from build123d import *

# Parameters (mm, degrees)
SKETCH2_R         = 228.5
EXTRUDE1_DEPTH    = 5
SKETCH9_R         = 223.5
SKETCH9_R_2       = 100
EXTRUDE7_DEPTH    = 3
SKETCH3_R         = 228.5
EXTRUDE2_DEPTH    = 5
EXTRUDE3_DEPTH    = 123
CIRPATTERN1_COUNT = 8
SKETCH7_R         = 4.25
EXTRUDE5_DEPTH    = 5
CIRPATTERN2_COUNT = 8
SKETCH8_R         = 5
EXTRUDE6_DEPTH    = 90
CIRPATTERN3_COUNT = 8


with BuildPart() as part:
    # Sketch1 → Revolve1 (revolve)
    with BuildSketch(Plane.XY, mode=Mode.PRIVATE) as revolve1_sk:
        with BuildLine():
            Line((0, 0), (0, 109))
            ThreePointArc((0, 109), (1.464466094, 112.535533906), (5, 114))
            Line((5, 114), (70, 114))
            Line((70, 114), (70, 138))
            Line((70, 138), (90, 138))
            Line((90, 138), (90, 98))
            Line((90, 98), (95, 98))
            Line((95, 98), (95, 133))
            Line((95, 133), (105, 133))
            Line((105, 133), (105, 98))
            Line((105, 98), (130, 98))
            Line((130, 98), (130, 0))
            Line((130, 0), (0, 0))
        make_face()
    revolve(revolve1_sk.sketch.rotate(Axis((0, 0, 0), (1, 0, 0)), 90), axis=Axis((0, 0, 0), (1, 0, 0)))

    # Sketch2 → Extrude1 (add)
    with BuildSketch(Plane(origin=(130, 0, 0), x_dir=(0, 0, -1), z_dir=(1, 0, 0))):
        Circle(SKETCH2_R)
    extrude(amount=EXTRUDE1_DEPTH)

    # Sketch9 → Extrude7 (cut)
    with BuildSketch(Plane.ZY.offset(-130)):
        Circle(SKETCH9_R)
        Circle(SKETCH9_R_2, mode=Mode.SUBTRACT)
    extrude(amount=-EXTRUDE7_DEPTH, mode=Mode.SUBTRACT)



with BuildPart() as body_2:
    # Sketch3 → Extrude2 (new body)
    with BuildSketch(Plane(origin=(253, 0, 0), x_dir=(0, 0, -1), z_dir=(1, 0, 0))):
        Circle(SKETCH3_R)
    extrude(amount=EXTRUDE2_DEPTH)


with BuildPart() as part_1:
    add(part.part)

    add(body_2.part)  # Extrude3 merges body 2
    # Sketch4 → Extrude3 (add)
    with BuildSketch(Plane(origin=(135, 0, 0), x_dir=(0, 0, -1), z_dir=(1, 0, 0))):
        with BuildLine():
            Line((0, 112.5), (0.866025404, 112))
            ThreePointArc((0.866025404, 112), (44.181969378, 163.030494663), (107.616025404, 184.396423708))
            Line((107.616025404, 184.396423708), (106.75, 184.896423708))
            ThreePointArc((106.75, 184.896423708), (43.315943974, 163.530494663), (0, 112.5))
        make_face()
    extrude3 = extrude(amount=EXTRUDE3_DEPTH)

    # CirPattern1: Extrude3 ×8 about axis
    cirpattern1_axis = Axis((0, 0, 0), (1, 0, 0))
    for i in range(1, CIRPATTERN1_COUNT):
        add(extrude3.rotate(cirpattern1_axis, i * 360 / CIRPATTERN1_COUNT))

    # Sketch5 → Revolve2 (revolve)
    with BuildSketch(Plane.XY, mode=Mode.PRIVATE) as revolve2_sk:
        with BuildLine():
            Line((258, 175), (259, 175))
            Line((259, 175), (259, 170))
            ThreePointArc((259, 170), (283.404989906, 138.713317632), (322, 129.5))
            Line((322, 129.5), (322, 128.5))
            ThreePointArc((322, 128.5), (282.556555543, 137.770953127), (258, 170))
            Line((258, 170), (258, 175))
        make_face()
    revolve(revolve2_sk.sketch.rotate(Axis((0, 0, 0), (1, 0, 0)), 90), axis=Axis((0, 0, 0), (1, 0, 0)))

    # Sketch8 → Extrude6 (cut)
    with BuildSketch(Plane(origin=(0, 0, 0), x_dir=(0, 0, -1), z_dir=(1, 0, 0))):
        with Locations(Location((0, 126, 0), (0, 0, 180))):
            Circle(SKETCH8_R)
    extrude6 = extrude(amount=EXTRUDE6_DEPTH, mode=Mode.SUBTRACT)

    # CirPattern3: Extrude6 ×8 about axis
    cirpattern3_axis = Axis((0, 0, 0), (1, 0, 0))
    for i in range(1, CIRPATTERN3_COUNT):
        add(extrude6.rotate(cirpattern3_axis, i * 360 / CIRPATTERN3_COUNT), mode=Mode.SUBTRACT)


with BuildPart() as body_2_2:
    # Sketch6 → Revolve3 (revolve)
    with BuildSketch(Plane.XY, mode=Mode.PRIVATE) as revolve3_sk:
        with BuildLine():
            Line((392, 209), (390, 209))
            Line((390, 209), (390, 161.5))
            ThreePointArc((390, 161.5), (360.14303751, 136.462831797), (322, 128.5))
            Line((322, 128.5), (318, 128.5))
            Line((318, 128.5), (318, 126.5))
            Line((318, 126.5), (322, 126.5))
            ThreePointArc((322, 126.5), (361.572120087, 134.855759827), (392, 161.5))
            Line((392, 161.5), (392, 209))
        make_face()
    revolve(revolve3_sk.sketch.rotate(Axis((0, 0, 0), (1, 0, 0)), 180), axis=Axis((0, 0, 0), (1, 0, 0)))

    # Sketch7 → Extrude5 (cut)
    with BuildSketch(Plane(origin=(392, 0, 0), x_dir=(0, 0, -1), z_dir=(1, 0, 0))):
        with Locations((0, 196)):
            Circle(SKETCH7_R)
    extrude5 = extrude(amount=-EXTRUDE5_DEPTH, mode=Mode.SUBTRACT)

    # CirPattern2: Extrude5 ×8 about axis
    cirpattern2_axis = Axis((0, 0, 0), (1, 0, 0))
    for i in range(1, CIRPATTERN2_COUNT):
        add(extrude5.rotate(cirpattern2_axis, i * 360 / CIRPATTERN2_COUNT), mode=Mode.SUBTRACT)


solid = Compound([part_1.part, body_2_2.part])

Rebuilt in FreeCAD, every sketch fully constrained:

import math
import FreeCAD as App
import Part
import Sketcher
from FreeCAD import Vector
Q = App.Units.Quantity

doc = App.newDocument("Part")
body = doc.addObject("PartDesign::Body", "Body")

# Sketch on XY plane
sketch1 = body.newObject("Sketcher::SketchObject", "Sketch")
sketch1.AttachmentSupport = (doc.getObject("XY_Plane"), [""])
sketch1.MapMode = "FlatFace"
sketch1.addGeometry([
    Part.LineSegment(Vector(0, 109, 0), Vector(0, 0, 0)),  # 0
    Part.LineSegment(Vector(0, 0, 0), Vector(130, 0, 0)),  # 1
    Part.LineSegment(Vector(130, 0, 0), Vector(130, 98, 0)),  # 2
    Part.LineSegment(Vector(130, 98, 0), Vector(105, 98, 0)),  # 3
    Part.LineSegment(Vector(105, 98, 0), Vector(105, 133, 0)),  # 4
    Part.LineSegment(Vector(105, 133, 0), Vector(95, 133, 0)),  # 5
    Part.LineSegment(Vector(95, 133, 0), Vector(95, 98, 0)),  # 6
    Part.LineSegment(Vector(95, 98, 0), Vector(90, 98, 0)),  # 7
    Part.LineSegment(Vector(90, 98, 0), Vector(90, 138, 0)),  # 8
    Part.LineSegment(Vector(90, 138, 0), Vector(70, 138, 0)),  # 9
    Part.LineSegment(Vector(70, 138, 0), Vector(70, 114, 0)),  # 10
    Part.LineSegment(Vector(70, 114, 0), Vector(5, 114, 0)),  # 11
    Part.ArcOfCircle(Part.Circle(Vector(5, 109, 0), Vector(0, 0, 1), 5), math.radians(90), math.radians(180)),  # 12
], False)
sketch1.addConstraint([
    Sketcher.Constraint("Coincident", 0, 2, 1, 1),
    Sketcher.Constraint("Coincident", 1, 2, 2, 1),
    Sketcher.Constraint("Coincident", 2, 2, 3, 1),
    Sketcher.Constraint("Coincident", 3, 2, 4, 1),
    Sketcher.Constraint("Coincident", 4, 2, 5, 1),
    Sketcher.Constraint("Coincident", 5, 2, 6, 1),
    Sketcher.Constraint("Coincident", 6, 2, 7, 1),
    Sketcher.Constraint("Coincident", 7, 2, 8, 1),
    Sketcher.Constraint("Coincident", 8, 2, 9, 1),
    Sketcher.Constraint("Coincident", 9, 2, 10, 1),
    Sketcher.Constraint("Coincident", 10, 2, 11, 1),
    Sketcher.Constraint("Tangent", 11, 2, 12, 1),
    Sketcher.Constraint("Tangent", 12, 2, 0, 1),
    Sketcher.Constraint("Vertical", 0),
    Sketcher.Constraint("Horizontal", 1),
    Sketcher.Constraint("Vertical", 2),
    Sketcher.Constraint("Horizontal", 3),
    Sketcher.Constraint("Vertical", 4),
    Sketcher.Constraint("Horizontal", 5),
    Sketcher.Constraint("Vertical", 6),
    Sketcher.Constraint("Horizontal", 7),
    Sketcher.Constraint("Vertical", 8),
    Sketcher.Constraint("Horizontal", 9),
    Sketcher.Constraint("Vertical", 10),
    Sketcher.Constraint("Horizontal", 11),
    Sketcher.Constraint("Coincident", 0, 2, -1, 1),
    Sketcher.Constraint("Horizontal", 3, 2, 6, 2),
    Sketcher.Constraint("Radius", 12, 5.0),
    Sketcher.Constraint("DistanceX", 1, 1, 1, 2, 130.0),
    Sketcher.Constraint("DistanceX", 3, 2, 3, 1, 25.0),
    Sketcher.Constraint("DistanceX", 5, 2, 5, 1, 10.0),
    Sketcher.Constraint("DistanceX", 7, 2, 7, 1, 5.0),
    Sketcher.Constraint("DistanceX", 9, 2, 9, 1, 20.0),
    Sketcher.Constraint("DistanceY", 0, 2, 0, 1, 109.0),
    Sketcher.Constraint("DistanceY", 2, 1, 2, 2, 98.0),
    Sketcher.Constraint("DistanceY", 4, 1, 4, 2, 35.0),
    Sketcher.Constraint("DistanceY", 8, 1, 8, 2, 40.0),
])
revolution = body.newObject("PartDesign::Revolution", "Revolution")
revolution.Profile = sketch1
revolution.ReferenceAxis = (sketch1, ["H_Axis"])
revolution.Angle = 360

# Sketch on YZ plane
sketch2 = body.newObject("Sketcher::SketchObject", "Sketch001")
sketch2.AttachmentSupport = (doc.getObject("YZ_Plane"), [""])
sketch2.MapMode = "FlatFace"
sketch2.AttachmentOffset = App.Placement(Vector(0, 0, 130), App.Rotation())
sketch2.addGeometry(Part.Circle(Vector(0, 0, 0), Vector(0, 0, 1), 228), False)
sketch2.addConstraint([
    Sketcher.Constraint("Coincident", 0, 3, -1, 1),
    Sketcher.Constraint("Diameter", 0, 457.0),
])
pad1 = body.newObject("PartDesign::Pad", "Pad")
pad1.Profile = sketch2
pad1.Length = 5

# Sketch on YZ plane
sketch3 = body.newObject("Sketcher::SketchObject", "Sketch002")
sketch3.AttachmentSupport = (doc.getObject("YZ_Plane"), [""])
sketch3.MapMode = "FlatFace"
sketch3.AttachmentOffset = App.Placement(Vector(0, 0, 130), App.Rotation())
sketch3.addGeometry([
    Part.Circle(Vector(0, 0, 0), Vector(0, 0, 1), 224),
    Part.Circle(Vector(0, 0, 0), Vector(0, 0, 1), 100),
], False)
sketch3.addConstraint([
    Sketcher.Constraint("Coincident", 0, 3, -1, 1),
    Sketcher.Constraint("Coincident", 1, 3, -1, 1),
    Sketcher.Constraint("Diameter", 0, 447.0),
    Sketcher.Constraint("Diameter", 1, 200.0),
])
pocket1 = body.newObject("PartDesign::Pocket", "Pocket")
pocket1.Profile = sketch3
pocket1.Length = 3
pocket1.Reversed = True
body2 = doc.addObject("PartDesign::Body", "Body001")

# Sketch on YZ plane
sketch4 = body2.newObject("Sketcher::SketchObject", "Sketch003")
sketch4.AttachmentSupport = (doc.getObject("YZ_Plane001"), [""])
sketch4.MapMode = "FlatFace"
sketch4.AttachmentOffset = App.Placement(Vector(0, 0, 253), App.Rotation())
sketch4.addGeometry(Part.Circle(Vector(0, 0, 0), Vector(0, 0, 1), 228), False)
sketch4.addConstraint([
    Sketcher.Constraint("Coincident", 0, 3, -1, 1),
    Sketcher.Constraint("Diameter", 0, 457.0),
])
pad2 = body2.newObject("PartDesign::Pad", "Pad001")
pad2.Profile = sketch4
pad2.Length = 5
body.AllowCompound = True
doc.recompute()

boolean = body.newObject("PartDesign::Boolean", "Boolean")
boolean.Type = "Fuse"
boolean.addObjects([body2])

# Sketch on YZ plane
sketch5 = body.newObject("Sketcher::SketchObject", "Sketch004")
sketch5.AttachmentSupport = (doc.getObject("YZ_Plane"), [""])
sketch5.MapMode = "FlatFace"
sketch5.AttachmentOffset = App.Placement(Vector(0, 0, 135), App.Rotation())
sketch5.addGeometry([
    Part.LineSegment(Vector(112.5, 0, 0), Vector(112, -0.9, 0)),
    Part.ArcOfCircle(Part.Circle(Vector(59.6, -114.3, 0), Vector(0, 0, 1), 125), math.radians(3), math.radians(65)),
    Part.LineSegment(Vector(184.4, -107.6, 0), Vector(184.9, -106.8, 0)),
    Part.ArcOfCircle(Part.Circle(Vector(60.1, -113.5, 0), Vector(0, 0, 1), 125), math.radians(3), math.radians(65)),
], False)
sketch5.addConstraint([
    Sketcher.Constraint("Coincident", 0, 2, 1, 2),
    Sketcher.Constraint("Coincident", 1, 1, 2, 1),
    Sketcher.Constraint("Coincident", 2, 2, 3, 1),
    Sketcher.Constraint("Coincident", 3, 2, 0, 1),
    Sketcher.Constraint("Equal", 1, 3),
    Sketcher.Constraint("PointOnObject", 3, 2, -1),
    Sketcher.Constraint("Parallel", 0, 2),
    Sketcher.Constraint("Equal", 0, 2),
    Sketcher.Constraint("Radius", 1, 125.0),
    Sketcher.Constraint("Angle", 0, Q("-120 deg")),
    Sketcher.Constraint("Distance", 0, 1.0),
    Sketcher.Constraint("DistanceX", -1, 1, 0, 2, 112.0),
    Sketcher.Constraint("DistanceY", 2, 2, -1, 1, 106.75),
    Sketcher.Constraint("DistanceX", -1, 1, 1, 3, 59.577531),
])
pad3 = body.newObject("PartDesign::Pad", "Pad002")
pad3.Profile = sketch5
pad3.Length = 123
doc.recompute()

polarpattern = body.newObject("PartDesign::PolarPattern", "PolarPattern")
polarpattern.Originals = [pad3]
polarpattern.Axis = (doc.getObject("X_Axis"), [""])
polarpattern.Angle = 360
polarpattern.Occurrences = 8
body.Tip = polarpattern

# Sketch on XY plane
sketch6 = body.newObject("Sketcher::SketchObject", "Sketch005")
sketch6.AttachmentSupport = (doc.getObject("XY_Plane"), [""])
sketch6.MapMode = "FlatFace"
sketch6.addGeometry([
    Part.LineSegment(Vector(259, 175, 0), Vector(258, 175, 0)),  # 0
    Part.LineSegment(Vector(258, 175, 0), Vector(258, 170, 0)),  # 1
    Part.ArcOfCircle(Part.Circle(Vector(315.2, 188.1, 0), Vector(0, 0, 1), 60), math.radians(-162), math.radians(-83)),  # 2
    Part.LineSegment(Vector(322, 128.5, 0), Vector(322, 129.5, 0)),  # 3
    Part.ArcOfCircle(Part.Circle(Vector(315.9, 189.2, 0), Vector(0, 0, 1), 60), math.radians(-161), math.radians(-84)),  # 4
    Part.LineSegment(Vector(259, 170, 0), Vector(259, 175, 0)),  # 5
], False)
sketch6.addConstraint([
    Sketcher.Constraint("Coincident", 0, 2, 1, 1),
    Sketcher.Constraint("Coincident", 1, 2, 2, 1),
    Sketcher.Constraint("Coincident", 2, 2, 3, 1),
    Sketcher.Constraint("Coincident", 3, 2, 4, 2),
    Sketcher.Constraint("Coincident", 4, 1, 5, 1),
    Sketcher.Constraint("Coincident", 5, 2, 0, 1),
    Sketcher.Constraint("Horizontal", 0),
    Sketcher.Constraint("Vertical", 1),
    Sketcher.Constraint("Vertical", 3),
    Sketcher.Constraint("Vertical", 5),
    Sketcher.Constraint("Equal", 2, 4),
    Sketcher.Constraint("Horizontal", 1, 2, 4, 1),
    Sketcher.Constraint("Equal", 0, 3),
    Sketcher.Constraint("Radius", 2, 60.0),
    Sketcher.Constraint("DistanceX", 0, 2, 0, 1, 1.0),
    Sketcher.Constraint("DistanceY", 1, 2, 1, 1, 5.0),
    Sketcher.Constraint("DistanceX", -1, 1, 0, 2, 258.0),
    Sketcher.Constraint("DistanceY", -1, 1, 0, 2, 175.0),
    Sketcher.Constraint("DistanceX", -1, 1, 2, 2, 322.0),
    Sketcher.Constraint("DistanceY", -1, 1, 2, 2, 128.5),
])
revolution2 = body.newObject("PartDesign::Revolution", "Revolution001")
revolution2.Profile = sketch6
revolution2.ReferenceAxis = (sketch6, ["H_Axis"])
revolution2.Angle = 360

# Sketch on YZ plane
sketch7 = body.newObject("Sketcher::SketchObject", "Sketch006")
sketch7.AttachmentSupport = (doc.getObject("YZ_Plane"), [""])
sketch7.MapMode = "FlatFace"
sketch7.addGeometry(Part.Circle(Vector(126, 0, 0), Vector(0, 0, 1), 5), False)
sketch7.addConstraint([
    Sketcher.Constraint("PointOnObject", 0, 3, -1),
    Sketcher.Constraint("Diameter", 0, 10.0),
    Sketcher.Constraint("DistanceX", -1, 1, 0, 3, 126.0),
])
pocket2 = body.newObject("PartDesign::Pocket", "Pocket001")
pocket2.Profile = sketch7
pocket2.Length = 90
pocket2.Reversed = True
doc.recompute()

polarpattern2 = body.newObject("PartDesign::PolarPattern", "PolarPattern001")
polarpattern2.Originals = [pocket2]
polarpattern2.Axis = (doc.getObject("X_Axis"), [""])
polarpattern2.Angle = 360
polarpattern2.Occurrences = 8
body.Tip = polarpattern2
body3 = doc.addObject("PartDesign::Body", "Body002")

# Sketch on XY plane
sketch8 = body3.newObject("Sketcher::SketchObject", "Sketch007")
sketch8.AttachmentSupport = (doc.getObject("XY_Plane002"), [""])
sketch8.MapMode = "FlatFace"
sketch8.addGeometry([
    Part.LineSegment(Vector(392, 209, 0), Vector(390, 209, 0)),  # 0
    Part.LineSegment(Vector(390, 209, 0), Vector(390, 161.5, 0)),  # 1
    Part.ArcOfCircle(Part.Circle(Vector(325.2, 208.4, 0), Vector(0, 0, 1), 80), math.radians(-92), math.radians(-36)),  # 2
    Part.LineSegment(Vector(322, 128.5, 0), Vector(318, 128.5, 0)),  # 3
    Part.LineSegment(Vector(318, 128.5, 0), Vector(318, 126.5, 0)),  # 4
    Part.LineSegment(Vector(318, 126.5, 0), Vector(322, 126.5, 0)),  # 5
    Part.ArcOfCircle(Part.Circle(Vector(325.8, 206.4, 0), Vector(0, 0, 1), 80), math.radians(-93), math.radians(-34)),  # 6
    Part.LineSegment(Vector(392, 161.5, 0), Vector(392, 209, 0)),  # 7
], False)
sketch8.addConstraint([
    Sketcher.Constraint("Coincident", 0, 2, 1, 1),
    Sketcher.Constraint("Coincident", 1, 2, 2, 2),
    Sketcher.Constraint("Coincident", 2, 1, 3, 1),
    Sketcher.Constraint("Coincident", 3, 2, 4, 1),
    Sketcher.Constraint("Coincident", 4, 2, 5, 1),
    Sketcher.Constraint("Coincident", 5, 2, 6, 1),
    Sketcher.Constraint("Coincident", 6, 2, 7, 1),
    Sketcher.Constraint("Coincident", 7, 2, 0, 1),
    Sketcher.Constraint("Horizontal", 0),
    Sketcher.Constraint("Vertical", 1),
    Sketcher.Constraint("Horizontal", 3),
    Sketcher.Constraint("Vertical", 4),
    Sketcher.Constraint("Horizontal", 5),
    Sketcher.Constraint("Vertical", 7),
    Sketcher.Constraint("Equal", 2, 6),
    Sketcher.Constraint("Horizontal", 1, 2, 6, 2),
    Sketcher.Constraint("Vertical", 2, 1, 5, 2),
    Sketcher.Constraint("Equal", 0, 4),
    Sketcher.Constraint("Radius", 2, 80.0),
    Sketcher.Constraint("DistanceX", 0, 2, 0, 1, 2.0),
    Sketcher.Constraint("DistanceX", 3, 2, 3, 1, 4.0),
    Sketcher.Constraint("DistanceY", 1, 2, 1, 1, 47.5),
    Sketcher.Constraint("DistanceX", -1, 1, 0, 2, 390.0),
    Sketcher.Constraint("DistanceY", -1, 1, 0, 2, 209.0),
    Sketcher.Constraint("DistanceX", -1, 1, 2, 1, 322.0),
    Sketcher.Constraint("DistanceY", 2, 1, 1, 2, 33.0),
])
revolution3 = body3.newObject("PartDesign::Revolution", "Revolution002")
revolution3.Profile = sketch8
revolution3.ReferenceAxis = (sketch8, ["H_Axis"])
revolution3.Angle = 360

# Sketch on YZ plane
sketch9 = body3.newObject("Sketcher::SketchObject", "Sketch008")
sketch9.AttachmentSupport = (doc.getObject("YZ_Plane002"), [""])
sketch9.MapMode = "FlatFace"
sketch9.AttachmentOffset = App.Placement(Vector(0, 0, 392), App.Rotation())
sketch9.addGeometry(Part.Circle(Vector(196, 0, 0), Vector(0, 0, 1), 4.2), False)
sketch9.addConstraint([
    Sketcher.Constraint("PointOnObject", 0, 3, -1),
    Sketcher.Constraint("Diameter", 0, 8.5),
    Sketcher.Constraint("DistanceX", -1, 1, 0, 3, 196.0),
])
pocket3 = body3.newObject("PartDesign::Pocket", "Pocket002")
pocket3.Profile = sketch9
pocket3.Length = 5
doc.recompute()

polarpattern3 = body3.newObject("PartDesign::PolarPattern", "PolarPattern002")
polarpattern3.Originals = [pocket3]
polarpattern3.Axis = (doc.getObject("X_Axis002"), [""])
polarpattern3.Angle = 360
polarpattern3.Occurrences = 8
body3.Tip = polarpattern3

doc.recompute()
